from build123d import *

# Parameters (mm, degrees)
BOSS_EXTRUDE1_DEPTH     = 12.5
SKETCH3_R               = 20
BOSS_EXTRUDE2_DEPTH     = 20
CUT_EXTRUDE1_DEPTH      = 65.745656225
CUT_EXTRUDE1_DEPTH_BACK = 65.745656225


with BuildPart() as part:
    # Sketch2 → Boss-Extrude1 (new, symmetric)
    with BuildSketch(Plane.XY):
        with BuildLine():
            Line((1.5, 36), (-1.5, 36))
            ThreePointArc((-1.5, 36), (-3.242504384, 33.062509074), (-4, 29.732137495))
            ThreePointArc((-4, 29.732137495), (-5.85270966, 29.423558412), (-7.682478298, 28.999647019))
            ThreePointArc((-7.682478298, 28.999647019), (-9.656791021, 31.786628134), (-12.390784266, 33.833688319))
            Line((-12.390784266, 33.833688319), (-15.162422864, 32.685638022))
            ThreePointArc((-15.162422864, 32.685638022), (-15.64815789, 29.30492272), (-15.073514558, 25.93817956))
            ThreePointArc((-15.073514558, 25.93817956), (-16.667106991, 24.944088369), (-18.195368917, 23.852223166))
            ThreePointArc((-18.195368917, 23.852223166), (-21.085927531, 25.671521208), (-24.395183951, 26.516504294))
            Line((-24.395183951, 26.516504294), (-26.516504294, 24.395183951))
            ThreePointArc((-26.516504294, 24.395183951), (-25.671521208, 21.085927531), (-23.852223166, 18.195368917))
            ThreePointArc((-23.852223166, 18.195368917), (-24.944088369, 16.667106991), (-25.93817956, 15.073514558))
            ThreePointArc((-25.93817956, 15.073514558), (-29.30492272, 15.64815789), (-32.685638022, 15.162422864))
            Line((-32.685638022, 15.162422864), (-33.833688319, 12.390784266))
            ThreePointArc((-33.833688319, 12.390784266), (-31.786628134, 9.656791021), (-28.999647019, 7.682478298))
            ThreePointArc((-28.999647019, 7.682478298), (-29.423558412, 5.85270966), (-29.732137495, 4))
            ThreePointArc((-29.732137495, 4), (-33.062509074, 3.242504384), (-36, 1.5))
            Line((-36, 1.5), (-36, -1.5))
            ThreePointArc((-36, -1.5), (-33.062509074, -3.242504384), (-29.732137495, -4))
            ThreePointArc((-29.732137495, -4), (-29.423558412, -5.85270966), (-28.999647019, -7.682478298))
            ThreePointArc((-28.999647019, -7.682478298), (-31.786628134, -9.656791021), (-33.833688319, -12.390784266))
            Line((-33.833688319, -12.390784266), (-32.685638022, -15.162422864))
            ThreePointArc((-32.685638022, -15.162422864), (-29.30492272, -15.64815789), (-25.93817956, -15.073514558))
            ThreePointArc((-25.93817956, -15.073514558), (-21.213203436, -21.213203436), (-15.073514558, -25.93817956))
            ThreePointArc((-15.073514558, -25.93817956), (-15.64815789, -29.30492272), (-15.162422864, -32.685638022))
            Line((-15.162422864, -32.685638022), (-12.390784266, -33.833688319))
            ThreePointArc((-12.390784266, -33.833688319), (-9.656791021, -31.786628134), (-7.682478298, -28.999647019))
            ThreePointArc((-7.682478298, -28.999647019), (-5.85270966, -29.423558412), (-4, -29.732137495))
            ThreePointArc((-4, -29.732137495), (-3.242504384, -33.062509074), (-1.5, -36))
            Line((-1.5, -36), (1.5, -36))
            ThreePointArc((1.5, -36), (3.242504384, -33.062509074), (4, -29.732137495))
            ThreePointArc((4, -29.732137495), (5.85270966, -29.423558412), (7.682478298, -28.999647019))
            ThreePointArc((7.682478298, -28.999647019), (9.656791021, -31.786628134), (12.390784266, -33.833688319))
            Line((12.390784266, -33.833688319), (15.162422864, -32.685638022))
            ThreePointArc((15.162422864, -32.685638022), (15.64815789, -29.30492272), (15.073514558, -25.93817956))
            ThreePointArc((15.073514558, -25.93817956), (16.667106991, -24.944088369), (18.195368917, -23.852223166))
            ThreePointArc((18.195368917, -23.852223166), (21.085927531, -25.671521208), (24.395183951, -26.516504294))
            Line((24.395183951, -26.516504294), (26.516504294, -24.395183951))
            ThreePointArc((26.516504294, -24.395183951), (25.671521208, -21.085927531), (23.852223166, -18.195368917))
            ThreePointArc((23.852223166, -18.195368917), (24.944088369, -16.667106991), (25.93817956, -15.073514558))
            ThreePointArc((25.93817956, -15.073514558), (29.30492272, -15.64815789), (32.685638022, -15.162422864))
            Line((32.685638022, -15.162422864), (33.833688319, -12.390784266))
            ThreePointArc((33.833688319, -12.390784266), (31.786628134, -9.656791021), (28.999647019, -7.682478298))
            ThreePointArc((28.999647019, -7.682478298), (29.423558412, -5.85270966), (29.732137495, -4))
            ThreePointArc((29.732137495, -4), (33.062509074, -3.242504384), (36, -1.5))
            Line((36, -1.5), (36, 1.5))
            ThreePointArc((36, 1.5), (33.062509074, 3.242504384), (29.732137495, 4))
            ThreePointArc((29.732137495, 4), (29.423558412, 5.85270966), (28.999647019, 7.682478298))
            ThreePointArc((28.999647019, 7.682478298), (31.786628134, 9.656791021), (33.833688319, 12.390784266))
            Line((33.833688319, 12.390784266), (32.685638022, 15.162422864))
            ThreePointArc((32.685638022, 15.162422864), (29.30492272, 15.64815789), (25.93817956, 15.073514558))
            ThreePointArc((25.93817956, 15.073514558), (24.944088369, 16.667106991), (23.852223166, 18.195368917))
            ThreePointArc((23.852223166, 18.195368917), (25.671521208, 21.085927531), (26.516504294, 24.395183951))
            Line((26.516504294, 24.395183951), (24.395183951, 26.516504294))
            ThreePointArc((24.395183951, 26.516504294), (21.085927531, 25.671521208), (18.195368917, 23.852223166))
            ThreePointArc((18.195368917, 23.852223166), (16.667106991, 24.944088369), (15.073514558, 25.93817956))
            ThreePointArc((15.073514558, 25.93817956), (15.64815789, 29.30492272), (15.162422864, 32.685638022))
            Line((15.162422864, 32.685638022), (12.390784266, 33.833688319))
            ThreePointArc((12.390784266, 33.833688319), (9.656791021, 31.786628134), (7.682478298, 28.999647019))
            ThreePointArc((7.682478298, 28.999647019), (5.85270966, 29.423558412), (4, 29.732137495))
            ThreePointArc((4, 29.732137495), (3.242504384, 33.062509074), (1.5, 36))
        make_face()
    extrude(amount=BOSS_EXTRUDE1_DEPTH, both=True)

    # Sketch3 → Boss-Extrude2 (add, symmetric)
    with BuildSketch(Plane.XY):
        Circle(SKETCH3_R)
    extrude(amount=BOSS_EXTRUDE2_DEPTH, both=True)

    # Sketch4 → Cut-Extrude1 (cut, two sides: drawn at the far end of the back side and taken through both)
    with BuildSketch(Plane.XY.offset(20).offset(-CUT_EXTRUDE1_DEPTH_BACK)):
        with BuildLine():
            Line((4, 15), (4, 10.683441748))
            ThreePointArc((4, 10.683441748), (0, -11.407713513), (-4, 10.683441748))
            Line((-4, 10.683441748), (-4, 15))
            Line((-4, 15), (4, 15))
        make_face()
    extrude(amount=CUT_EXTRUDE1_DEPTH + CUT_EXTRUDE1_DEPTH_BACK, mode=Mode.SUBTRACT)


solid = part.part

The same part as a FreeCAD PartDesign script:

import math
import FreeCAD as App
import Part
import Sketcher

V = App.Vector
Q = App.Units.Quantity

doc = App.newDocument("Part")
params = doc.addObject("Spreadsheet::Sheet", "Params")
for row, (alias, value) in enumerate([
    ("sketch1_radius", "11 mm"),
    ("sketch1_radius2", "30 mm"),
    ("sketch1_width", "3 mm"),
    ("sketch1_length", "3 mm"),
    ("pad1_length", "25 mm"),
    ("sketch2_diameter", "40 mm"),
    ("pad2_length", "40 mm"),
    ("sketch3_width", "8 mm"),
], start=1):
    params.set(f"A{row}", alias)
    params.set(f"B{row}", "=" + value)
    params.setAlias(f"B{row}", alias)

body = doc.addObject("PartDesign::Body", "Body")

sketch1 = body.newObject("Sketcher::SketchObject", "Sketch")
sketch1.AttachmentSupport = (doc.getObject("XY_Plane"), [""])
sketch1.MapMode = "FlatFace"
sketch1.addGeometry(Part.LineSegment(V(1.5, 36, 0), V(-1.5, 36, 0)), False)
sketch1.addGeometry(Part.ArcOfCircle(Part.Circle(V(7, 29, 0), V(0, 0, 1), 11), math.radians(140), math.radians(176)), False)
sketch1.addGeometry(Part.ArcOfCircle(Part.Circle(V(0, 0, 0), V(0, 0, 1), 30), math.radians(97.66), math.radians(104.84)), False)
sketch1.addGeometry(Part.ArcOfCircle(Part.Circle(V(-17.5, 24.1, 0), V(0, 0, 1), 11), math.radians(26), math.radians(62)), False)
sketch1.addGeometry(Part.LineSegment(V(-12.4, 33.8, 0), V(-15.2, 32.7, 0)), False)
sketch1.addGeometry(Part.ArcOfCircle(Part.Circle(V(-4.6, 29.4, 0), V(0, 0, 1), 11), math.radians(163), math.radians(199)), False)
sketch1.addGeometry(Part.ArcOfCircle(Part.Circle(V(0, 0, 0), V(0, 0, 1), 30), math.radians(120.16), math.radians(127.34)), False)
sketch1.addGeometry(Part.ArcOfCircle(Part.Circle(V(-25.4, 15.6, 0), V(0, 0, 1), 11), math.radians(49), math.radians(85)), False)
sketch1.addGeometry(Part.LineSegment(V(-24.4, 26.5, 0), V(-26.5, 24.4, 0)), False)
sketch1.addGeometry(Part.ArcOfCircle(Part.Circle(V(-15.6, 25.4, 0), V(0, 0, 1), 11), math.radians(-175), math.radians(-139)), False)
sketch1.addGeometry(Part.ArcOfCircle(Part.Circle(V(0, 0, 0), V(0, 0, 1), 30), math.radians(142.66), math.radians(149.84)), False)
sketch1.addGeometry(Part.ArcOfCircle(Part.Circle(V(-29.4, 4.6, 0), V(0, 0, 1), 11), math.radians(71), math.radians(107)), False)
sketch1.addGeometry(Part.LineSegment(V(-32.7, 15.2, 0), V(-33.8, 12.4, 0)), False)
sketch1.addGeometry(Part.ArcOfCircle(Part.Circle(V(-24.1, 17.5, 0), V(0, 0, 1), 11), math.radians(-152), math.radians(-116)), False)
sketch1.addGeometry(Part.ArcOfCircle(Part.Circle(V(0, 0, 0), V(0, 0, 1), 30), math.radians(165.16), math.radians(172.34)), False)
sketch1.addGeometry(Part.ArcOfCircle(Part.Circle(V(-29, -7, 0), V(0, 0, 1), 11), math.radians(94), math.radians(130)), False)
sketch1.addGeometry(Part.LineSegment(V(-36, 1.5, 0), V(-36, -1.5, 0)), False)
sketch1.addGeometry(Part.ArcOfCircle(Part.Circle(V(-29, 7, 0), V(0, 0, 1), 11), math.radians(-130), math.radians(-94)), False)
sketch1.addGeometry(Part.ArcOfCircle(Part.Circle(V(0, 0, 0), V(0, 0, 1), 30), math.radians(-172.34), math.radians(-165.16)), False)
sketch1.addGeometry(Part.ArcOfCircle(Part.Circle(V(-24.1, -17.5, 0), V(0, 0, 1), 11), math.radians(116), math.radians(152)), False)
sketch1.addGeometry(Part.LineSegment(V(-33.8, -12.4, 0), V(-32.7, -15.2, 0)), False)
sketch1.addGeometry(Part.ArcOfCircle(Part.Circle(V(-29.4, -4.6, 0), V(0, 0, 1), 11), math.radians(-107), math.radians(-71)), False)
sketch1.addGeometry(Part.ArcOfCircle(Part.Circle(V(0, 0, 0), V(0, 0, 1), 30), math.radians(-150), math.radians(-120)), False)
sketch1.addGeometry(Part.ArcOfCircle(Part.Circle(V(-4.6, -29.4, 0), V(0, 0, 1), 11), math.radians(161), math.radians(197)), False)
sketch1.addGeometry(Part.LineSegment(V(-15.2, -32.7, 0), V(-12.4, -33.8, 0)), False)
sketch1.addGeometry(Part.ArcOfCircle(Part.Circle(V(-17.5, -24.1, 0), V(0, 0, 1), 11), math.radians(-62), math.radians(-26)), False)
sketch1.addGeometry(Part.ArcOfCircle(Part.Circle(V(0, 0, 0), V(0, 0, 1), 30), math.radians(-104.84), math.radians(-97.66)), False)
sketch1.addGeometry(Part.ArcOfCircle(Part.Circle(V(7, -29, 0), V(0, 0, 1), 11), math.radians(-176), math.radians(-140)), False)
sketch1.addGeometry(Part.LineSegment(V(-1.5, -36, 0), V(1.5, -36, 0)), False)
sketch1.addGeometry(Part.ArcOfCircle(Part.Circle(V(-7, -29, 0), V(0, 0, 1), 11), math.radians(-40), math.radians(-4)), False)
sketch1.addGeometry(Part.ArcOfCircle(Part.Circle(V(0, 0, 0), V(0, 0, 1), 30), math.radians(-82.34), math.radians(-75.16)), False)
sketch1.addGeometry(Part.ArcOfCircle(Part.Circle(V(17.5, -24.1, 0), V(0, 0, 1), 11), math.radians(-154), math.radians(-118)), False)
sketch1.addGeometry(Part.LineSegment(V(12.4, -33.8, 0), V(15.2, -32.7, 0)), False)
sketch1.addGeometry(Part.ArcOfCircle(Part.Circle(V(4.6, -29.4, 0), V(0, 0, 1), 11), math.radians(-17), math.radians(19)), False)
sketch1.addGeometry(Part.ArcOfCircle(Part.Circle(V(0, 0, 0), V(0, 0, 1), 30), math.radians(-59.84), math.radians(-52.66)), False)
sketch1.addGeometry(Part.ArcOfCircle(Part.Circle(V(25.4, -15.6, 0), V(0, 0, 1), 11), math.radians(-131), math.radians(-95)), False)
sketch1.addGeometry(Part.LineSegment(V(24.4, -26.5, 0), V(26.5, -24.4, 0)), False)
sketch1.addGeometry(Part.ArcOfCircle(Part.Circle(V(15.6, -25.4, 0), V(0, 0, 1), 11), math.radians(5), math.radians(41)), False)
sketch1.addGeometry(Part.ArcOfCircle(Part.Circle(V(0, 0, 0), V(0, 0, 1), 30), math.radians(-37.34), math.radians(-30.16)), False)
sketch1.addGeometry(Part.ArcOfCircle(Part.Circle(V(29.4, -4.6, 0), V(0, 0, 1), 11), math.radians(-109), math.radians(-73)), False)
sketch1.addGeometry(Part.LineSegment(V(32.7, -15.2, 0), V(33.8, -12.4, 0)), False)
sketch1.addGeometry(Part.ArcOfCircle(Part.Circle(V(24.1, -17.5, 0), V(0, 0, 1), 11), math.radians(28), math.radians(64)), False)
sketch1.addGeometry(Part.ArcOfCircle(Part.Circle(V(0, 0, 0), V(0, 0, 1), 30), math.radians(-14.84), math.radians(-7.66)), False)
sketch1.addGeometry(Part.ArcOfCircle(Part.Circle(V(29, 7, 0), V(0, 0, 1), 11), math.radians(-86), math.radians(-50)), False)
sketch1.addGeometry(Part.LineSegment(V(36, -1.5, 0), V(36, 1.5, 0)), False)
sketch1.addGeometry(Part.ArcOfCircle(Part.Circle(V(29, -7, 0), V(0, 0, 1), 11), math.radians(50), math.radians(86)), False)
sketch1.addGeometry(Part.ArcOfCircle(Part.Circle(V(0, 0, 0), V(0, 0, 1), 30), math.radians(7.66), math.radians(14.84)), False)
sketch1.addGeometry(Part.ArcOfCircle(Part.Circle(V(24.1, 17.5, 0), V(0, 0, 1), 11), math.radians(-64), math.radians(-28)), False)
sketch1.addGeometry(Part.LineSegment(V(33.8, 12.4, 0), V(32.7, 15.2, 0)), False)
sketch1.addGeometry(Part.ArcOfCircle(Part.Circle(V(29.4, 4.6, 0), V(0, 0, 1), 11), math.radians(73), math.radians(109)), False)
sketch1.addGeometry(Part.ArcOfCircle(Part.Circle(V(0, 0, 0), V(0, 0, 1), 30), math.radians(30.16), math.radians(37.34)), False)
sketch1.addGeometry(Part.ArcOfCircle(Part.Circle(V(15.6, 25.4, 0), V(0, 0, 1), 11), math.radians(-41), math.radians(-5)), False)
sketch1.addGeometry(Part.LineSegment(V(26.5, 24.4, 0), V(24.4, 26.5, 0)), False)
sketch1.addGeometry(Part.ArcOfCircle(Part.Circle(V(25.4, 15.6, 0), V(0, 0, 1), 11), math.radians(95), math.radians(131)), False)
sketch1.addGeometry(Part.ArcOfCircle(Part.Circle(V(0, 0, 0), V(0, 0, 1), 30), math.radians(52.66), math.radians(59.84)), False)
sketch1.addGeometry(Part.ArcOfCircle(Part.Circle(V(4.6, 29.4, 0), V(0, 0, 1), 11), math.radians(-19), math.radians(17)), False)
sketch1.addGeometry(Part.LineSegment(V(15.2, 32.7, 0), V(12.4, 33.8, 0)), False)
sketch1.addGeometry(Part.ArcOfCircle(Part.Circle(V(17.5, 24.1, 0), V(0, 0, 1), 11), math.radians(118), math.radians(154)), False)
sketch1.addGeometry(Part.ArcOfCircle(Part.Circle(V(0, 0, 0), V(0, 0, 1), 30), math.radians(75.16), math.radians(82.34)), False)
sketch1.addGeometry(Part.ArcOfCircle(Part.Circle(V(-7, 29, 0), V(0, 0, 1), 11), math.radians(4), math.radians(40)), False)
sketch1.addConstraint(Sketcher.Constraint("Coincident", 0, 2, 1, 1))
sketch1.addConstraint(Sketcher.Constraint("Coincident", 1, 2, 2, 1))
sketch1.addConstraint(Sketcher.Constraint("Coincident", 2, 2, 3, 1))
sketch1.addConstraint(Sketcher.Constraint("Coincident", 3, 2, 4, 1))
sketch1.addConstraint(Sketcher.Constraint("Coincident", 4, 2, 5, 1))
sketch1.addConstraint(Sketcher.Constraint("Coincident", 5, 2, 6, 1))
sketch1.addConstraint(Sketcher.Constraint("Coincident", 6, 2, 7, 1))
sketch1.addConstraint(Sketcher.Constraint("Coincident", 7, 2, 8, 1))
sketch1.addConstraint(Sketcher.Constraint("Coincident", 8, 2, 9, 1))
sketch1.addConstraint(Sketcher.Constraint("Coincident", 9, 2, 10, 1))
sketch1.addConstraint(Sketcher.Constraint("Coincident", 10, 2, 11, 1))
sketch1.addConstraint(Sketcher.Constraint("Coincident", 11, 2, 12, 1))
sketch1.addConstraint(Sketcher.Constraint("Coincident", 12, 2, 13, 1))
sketch1.addConstraint(Sketcher.Constraint("Coincident", 13, 2, 14, 1))
sketch1.addConstraint(Sketcher.Constraint("Coincident", 14, 2, 15, 1))
sketch1.addConstraint(Sketcher.Constraint("Coincident", 15, 2, 16, 1))
sketch1.addConstraint(Sketcher.Constraint("Coincident", 16, 2, 17, 1))
sketch1.addConstraint(Sketcher.Constraint("Coincident", 17, 2, 18, 1))
sketch1.addConstraint(Sketcher.Constraint("Coincident", 18, 2, 19, 1))
sketch1.addConstraint(Sketcher.Constraint("Coincident", 19, 2, 20, 1))
sketch1.addConstraint(Sketcher.Constraint("Coincident", 20, 2, 21, 1))
sketch1.addConstraint(Sketcher.Constraint("Coincident", 21, 2, 22, 1))
sketch1.addConstraint(Sketcher.Constraint("Coincident", 22, 2, 23, 1))
sketch1.addConstraint(Sketcher.Constraint("Coincident", 23, 2, 24, 1))
sketch1.addConstraint(Sketcher.Constraint("Coincident", 24, 2, 25, 1))
sketch1.addConstraint(Sketcher.Constraint("Coincident", 25, 2, 26, 1))
sketch1.addConstraint(Sketcher.Constraint("Coincident", 26, 2, 27, 1))
sketch1.addConstraint(Sketcher.Constraint("Coincident", 27, 2, 28, 1))
sketch1.addConstraint(Sketcher.Constraint("Coincident", 28, 2, 29, 1))
sketch1.addConstraint(Sketcher.Constraint("Coincident", 29, 2, 30, 1))
sketch1.addConstraint(Sketcher.Constraint("Coincident", 30, 2, 31, 1))
sketch1.addConstraint(Sketcher.Constraint("Coincident", 31, 2, 32, 1))
sketch1.addConstraint(Sketcher.Constraint("Coincident", 32, 2, 33, 1))
sketch1.addConstraint(Sketcher.Constraint("Coincident", 33, 2, 34, 1))
sketch1.addConstraint(Sketcher.Constraint("Coincident", 34, 2, 35, 1))
sketch1.addConstraint(Sketcher.Constraint("Coincident", 35, 2, 36, 1))
sketch1.addConstraint(Sketcher.Constraint("Coincident", 36, 2, 37, 1))
sketch1.addConstraint(Sketcher.Constraint("Coincident", 37, 2, 38, 1))
sketch1.addConstraint(Sketcher.Constraint("Coincident", 38, 2, 39, 1))
sketch1.addConstraint(Sketcher.Constraint("Coincident", 39, 2, 40, 1))
sketch1.addConstraint(Sketcher.Constraint("Coincident", 40, 2, 41, 1))
sketch1.addConstraint(Sketcher.Constraint("Coincident", 41, 2, 42, 1))
sketch1.addConstraint(Sketcher.Constraint("Coincident", 42, 2, 43, 1))
sketch1.addConstraint(Sketcher.Constraint("Coincident", 43, 2, 44, 1))
sketch1.addConstraint(Sketcher.Constraint("Coincident", 44, 2, 45, 1))
sketch1.addConstraint(Sketcher.Constraint("Coincident", 45, 2, 46, 1))
sketch1.addConstraint(Sketcher.Constraint("Coincident", 46, 2, 47, 1))
sketch1.addConstraint(Sketcher.Constraint("Coincident", 47, 2, 48, 1))
sketch1.addConstraint(Sketcher.Constraint("Coincident", 48, 2, 49, 1))
sketch1.addConstraint(Sketcher.Constraint("Coincident", 49, 2, 50, 1))
sketch1.addConstraint(Sketcher.Constraint("Coincident", 50, 2, 51, 1))
sketch1.addConstraint(Sketcher.Constraint("Coincident", 51, 2, 52, 1))
sketch1.addConstraint(Sketcher.Constraint("Coincident", 52, 2, 53, 1))
sketch1.addConstraint(Sketcher.Constraint("Coincident", 53, 2, 54, 1))
sketch1.addConstraint(Sketcher.Constraint("Coincident", 54, 2, 55, 1))
sketch1.addConstraint(Sketcher.Constraint("Coincident", 55, 2, 56, 1))
sketch1.addConstraint(Sketcher.Constraint("Coincident", 56, 2, 57, 1))
sketch1.addConstraint(Sketcher.Constraint("Coincident", 57, 2, 58, 1))
sketch1.addConstraint(Sketcher.Constraint("Coincident", 58, 2, 59, 1))
sketch1.addConstraint(Sketcher.Constraint("Coincident", 59, 2, 0, 1))
sketch1.addConstraint(Sketcher.Constraint("Horizontal", 0))
sketch1.addConstraint(Sketcher.Constraint("Vertical", 16))
sketch1.addConstraint(Sketcher.Constraint("Horizontal", 28))
sketch1.addConstraint(Sketcher.Constraint("Vertical", 44))
sketch1.addConstraint(Sketcher.Constraint("Coincident", 2, 3, -1, 1))
sketch1.addConstraint(Sketcher.Constraint("Coincident", 6, 3, -1, 1))
sketch1.addConstraint(Sketcher.Constraint("Coincident", 10, 3, -1, 1))
sketch1.addConstraint(Sketcher.Constraint("Coincident", 14, 3, -1, 1))
sketch1.addConstraint(Sketcher.Constraint("Coincident", 18, 3, -1, 1))
sketch1.addConstraint(Sketcher.Constraint("Coincident", 22, 3, -1, 1))
sketch1.addConstraint(Sketcher.Constraint("Coincident", 26, 3, -1, 1))
sketch1.addConstraint(Sketcher.Constraint("Coincident", 30, 3, -1, 1))
sketch1.addConstraint(Sketcher.Constraint("Coincident", 34, 3, -1, 1))
sketch1.addConstraint(Sketcher.Constraint("Coincident", 38, 3, -1, 1))
sketch1.addConstraint(Sketcher.Constraint("Coincident", 42, 3, -1, 1))
sketch1.addConstraint(Sketcher.Constraint("Coincident", 46, 3, -1, 1))
sketch1.addConstraint(Sketcher.Constraint("Coincident", 50, 3, -1, 1))
sketch1.addConstraint(Sketcher.Constraint("Coincident", 54, 3, -1, 1))
sketch1.addConstraint(Sketcher.Constraint("Coincident", 58, 3, -1, 1))
sketch1.addConstraint(Sketcher.Constraint("Equal", 1, 3))
sketch1.addConstraint(Sketcher.Constraint("Equal", 3, 5))
sketch1.addConstraint(Sketcher.Constraint("Equal", 2, 6))
sketch1.addConstraint(Sketcher.Constraint("Equal", 5, 7))
sketch1.addConstraint(Sketcher.Constraint("Equal", 7, 9))
sketch1.addConstraint(Sketcher.Constraint("Equal", 6, 10))
sketch1.addConstraint(Sketcher.Constraint("Equal", 9, 11))
sketch1.addConstraint(Sketcher.Constraint("Equal", 11, 13))
sketch1.addConstraint(Sketcher.Constraint("Equal", 10, 14))
sketch1.addConstraint(Sketcher.Constraint("Equal", 13, 15))
sketch1.addConstraint(Sketcher.Constraint("Equal", 15, 17))
sketch1.addConstraint(Sketcher.Constraint("Equal", 14, 18))
sketch1.addConstraint(Sketcher.Constraint("Equal", 17, 19))
sketch1.addConstraint(Sketcher.Constraint("Equal", 19, 21))
sketch1.addConstraint(Sketcher.Constraint("Equal", 18, 22))
sketch1.addConstraint(Sketcher.Constraint("Equal", 21, 23))
sketch1.addConstraint(Sketcher.Constraint("Equal", 23, 25))
sketch1.addConstraint(Sketcher.Constraint("Equal", 22, 26))
sketch1.addConstraint(Sketcher.Constraint("Equal", 25, 27))
sketch1.addConstraint(Sketcher.Constraint("Equal", 27, 29))
sketch1.addConstraint(Sketcher.Constraint("Equal", 26, 30))
sketch1.addConstraint(Sketcher.Constraint("Equal", 29, 31))
sketch1.addConstraint(Sketcher.Constraint("Equal", 31, 33))
sketch1.addConstraint(Sketcher.Constraint("Equal", 30, 34))
sketch1.addConstraint(Sketcher.Constraint("Equal", 33, 35))
sketch1.addConstraint(Sketcher.Constraint("Equal", 35, 37))
sketch1.addConstraint(Sketcher.Constraint("Equal", 34, 38))
sketch1.addConstraint(Sketcher.Constraint("Equal", 37, 39))
sketch1.addConstraint(Sketcher.Constraint("Equal", 39, 41))
sketch1.addConstraint(Sketcher.Constraint("Equal", 38, 42))
sketch1.addConstraint(Sketcher.Constraint("Equal", 41, 43))
sketch1.addConstraint(Sketcher.Constraint("Equal", 43, 45))
sketch1.addConstraint(Sketcher.Constraint("Equal", 42, 46))
sketch1.addConstraint(Sketcher.Constraint("Equal", 45, 47))
sketch1.addConstraint(Sketcher.Constraint("Equal", 47, 49))
sketch1.addConstraint(Sketcher.Constraint("Equal", 46, 50))
sketch1.addConstraint(Sketcher.Constraint("Equal", 49, 51))
sketch1.addConstraint(Sketcher.Constraint("Equal", 51, 53))
sketch1.addConstraint(Sketcher.Constraint("Equal", 50, 54))
sketch1.addConstraint(Sketcher.Constraint("Equal", 53, 55))
sketch1.addConstraint(Sketcher.Constraint("Equal", 55, 57))
sketch1.addConstraint(Sketcher.Constraint("Equal", 54, 58))
sketch1.addConstraint(Sketcher.Constraint("Equal", 57, 59))
sketch1.addConstraint(Sketcher.Constraint("Symmetric", 1, 3, 29, 3, -1, 1))
sketch1.addConstraint(Sketcher.Constraint("Symmetric", 3, 3, 31, 3, -1, 1))
sketch1.addConstraint(Sketcher.Constraint("Symmetric", 5, 3, 33, 3, -1, 1))
sketch1.addConstraint(Sketcher.Constraint("Symmetric", 7, 3, 35, 3, -1, 1))
sketch1.addConstraint(Sketcher.Constraint("Symmetric", 9, 3, 37, 3, -1, 1))
sketch1.addConstraint(Sketcher.Constraint("Symmetric", 11, 3, 39, 3, -1, 1))
sketch1.addConstraint(Sketcher.Constraint("Symmetric", 13, 3, 41, 3, -1, 1))
sketch1.addConstraint(Sketcher.Constraint("Symmetric", 15, 3, 43, 3, -1, 1))
sketch1.addConstraint(Sketcher.Constraint("Symmetric", 17, 3, 45, 3, -1, 1))
sketch1.addConstraint(Sketcher.Constraint("Symmetric", 19, 3, 47, 3, -1, 1))
sketch1.addConstraint(Sketcher.Constraint("Symmetric", 21, 3, 49, 3, -1, 1))
sketch1.addConstraint(Sketcher.Constraint("Symmetric", 23, 3, 55, 3, -1, 1))
sketch1.addConstraint(Sketcher.Constraint("Symmetric", 25, 3, 57, 3, -1, 1))
sketch1.addConstraint(Sketcher.Constraint("Symmetric", 27, 3, 59, 3, -1, 1))
sketch1.addConstraint(Sketcher.Constraint("Symmetric", 27, 3, 29, 3, -2))
sketch1.addConstraint(Sketcher.Constraint("Symmetric", 25, 3, 31, 3, -2))
sketch1.addConstraint(Sketcher.Constraint("Symmetric", 23, 3, 33, 3, -2))
sketch1.addConstraint(Sketcher.Constraint("Symmetric", 21, 3, 39, 3, -2))
sketch1.addConstraint(Sketcher.Constraint("Symmetric", 19, 3, 41, 3, -2))
sketch1.addConstraint(Sketcher.Constraint("Symmetric", 17, 3, 43, 3, -2))
sketch1.addConstraint(Sketcher.Constraint("Symmetric", 9, 3, 51, 3, -2))
sketch1.addConstraint(Sketcher.Constraint("Symmetric", 7, 3, 53, 3, -2))
sketch1.addConstraint(Sketcher.Constraint("Perpendicular", 4, 20))
sketch1.addConstraint(Sketcher.Constraint("Perpendicular", 12, 24))
sketch1.addConstraint(Sketcher.Constraint("Perpendicular", 20, 32))
sketch1.addConstraint(Sketcher.Constraint("Parallel", 8, 36))
sketch1.addConstraint(Sketcher.Constraint("Perpendicular", 24, 40))
sketch1.addConstraint(Sketcher.Constraint("Perpendicular", 32, 48))
sketch1.addConstraint(Sketcher.Constraint("Perpendicular", 36, 52))
sketch1.addConstraint(Sketcher.Constraint("Perpendicular", 40, 56))
sketch1.addConstraint(Sketcher.Constraint("Horizontal", 24, 2, 31, 2))
sketch1.addConstraint(Sketcher.Constraint("Horizontal", 23, 2, 32, 2))
sketch1.addConstraint(Sketcher.Constraint("Horizontal", 20, 2, 39, 2))
sketch1.addConstraint(Sketcher.Constraint("Horizontal", 16, 2, 43, 2))
sketch1.addConstraint(Sketcher.Constraint("Horizontal", 12, 2, 47, 2))
sketch1.addConstraint(Sketcher.Constraint("Horizontal", 8, 2, 51, 2))
sketch1.addConstraint(Sketcher.Constraint("Horizontal", 7, 2, 52, 2))
sketch1.addConstraint(Sketcher.Constraint("Horizontal", 4, 2, 55, 2))
sketch1.addConstraint(Sketcher.Constraint("Vertical", 12, 2, 19, 2))
sketch1.addConstraint(Sketcher.Constraint("Vertical", 4, 2, 23, 2))
sketch1.addConstraint(Sketcher.Constraint("Vertical", 0, 2, 27, 2))
sketch1.addConstraint(Sketcher.Constraint("Vertical", 36, 2, 51, 2))
sketch1.addConstraint(Sketcher.Constraint("Equal", 28, 16))
sketch1.addConstraint(Sketcher.Constraint("Equal", 4, 8))
sketch1.addConstraint(Sketcher.Constraint("Equal", 8, 12))
sketch1.addConstraint(Sketcher.Constraint("Radius", 1, Q("11 mm")))
sketch1.addConstraint(Sketcher.Constraint("Radius", 2, Q("30 mm")))
sketch1.addConstraint(Sketcher.Constraint("DistanceX", 0, 2, 0, 1, Q("3 mm")))
sketch1.addConstraint(Sketcher.Constraint("Distance", 4, Q("3 mm")))
sketch1.addConstraint(Sketcher.Constraint("DistanceY", -1, 1, 0, 2, Q("36 mm")))
sketch1.addConstraint(Sketcher.Constraint("DistanceX", 1, 2, -1, 1, Q("4 mm")))
sketch1.addConstraint(Sketcher.Constraint("DistanceY", -1, 1, 14, 2, Q("4 mm")))
sketch1.addConstraint(Sketcher.Constraint("DistanceX", 15, 2, -1, 1, Q("36 mm")))
sketch1.addConstraint(Sketcher.Constraint("Angle", 4, Q("-157.5 deg")))
sketch1.addConstraint(Sketcher.Constraint("DistanceX", 3, 3, -1, 1, Q("17.536771 mm")))
sketch1.addConstraint(Sketcher.Constraint("DistanceY", -1, 1, 3, 3, Q("24.111609 mm")))
sketch1.addConstraint(Sketcher.Constraint("DistanceY", -1, 1, 7, 3, Q("15.565191 mm")))
sketch1.addConstraint(Sketcher.Constraint("DistanceX", 9, 3, -1, 1, Q("15.565191 mm")))
sketch1.addConstraint(Sketcher.Constraint("DistanceX", 13, 3, -1, 1, Q("24.111609 mm")))
sketch1.addConstraint(Sketcher.Constraint("DistanceY", -1, 1, 13, 3, Q("17.536771 mm")))
sketch1.addConstraint(Sketcher.Constraint("DistanceY", -1, 1, 3, 2, Q("33.833688 mm")))
sketch1.addConstraint(Sketcher.Constraint("DistanceY", -1, 1, 5, 2, Q("25.93818 mm")))
sketch1.addConstraint(Sketcher.Constraint("DistanceX", 6, 2, -1, 1, Q("18.195369 mm")))
sketch1.addConstraint(Sketcher.Constraint("DistanceY", -1, 1, 9, 2, Q("18.195369 mm")))
sketch1.addConstraint(Sketcher.Constraint("DistanceX", 10, 2, -1, 1, Q("25.93818 mm")))
sketch1.addConstraint(Sketcher.Constraint("DistanceX", 11, 2, -1, 1, Q("32.685638 mm")))
sketch1.setExpression("Constraints[167]", "Params.sketch1_radius")
sketch1.setExpression("Constraints[168]", "Params.sketch1_radius2")
sketch1.setExpression("Constraints[169]", "Params.sketch1_width")
sketch1.setExpression("Constraints[170]", "Params.sketch1_length")
pad1 = body.newObject("PartDesign::Pad", "Pad")
pad1.Profile = sketch1
pad1.setExpression("Length", "Params.pad1_length")
pad1.Midplane = True

sketch2 = body.newObject("Sketcher::SketchObject", "Sketch001")
sketch2.AttachmentSupport = (doc.getObject("XY_Plane"), [""])
sketch2.MapMode = "FlatFace"
sketch2.addGeometry(Part.Circle(V(0, 0, 0), V(0, 0, 1), 20), False)
sketch2.addConstraint(Sketcher.Constraint("Coincident", 0, 3, -1, 1))
sketch2.addConstraint(Sketcher.Constraint("Diameter", 0, Q("40 mm")))
sketch2.setExpression("Constraints[1]", "Params.sketch2_diameter")
pad2 = body.newObject("PartDesign::Pad", "Pad001")
pad2.Profile = sketch2
pad2.setExpression("Length", "Params.pad2_length")
pad2.Midplane = True

sketch3 = body.newObject("Sketcher::SketchObject", "Sketch002")
sketch3.AttachmentSupport = (doc.getObject("XY_Plane"), [""])
sketch3.MapMode = "FlatFace"
sketch3.AttachmentOffset = App.Placement(V(0, 0, 20), App.Rotation())
sketch3.addGeometry(Part.LineSegment(V(4, 10.7, 0), V(4, 15, 0)), False)
sketch3.addGeometry(Part.LineSegment(V(4, 15, 0), V(-4, 15, 0)), False)
sketch3.addGeometry(Part.LineSegment(V(-4, 15, 0), V(-4, 10.7, 0)), False)
sketch3.addGeometry(Part.ArcOfCircle(Part.Circle(V(0, 0, 0), V(0, 0, 1), 11.4), math.radians(111), math.radians(429)), False)
sketch3.addConstraint(Sketcher.Constraint("Coincident", 0, 2, 1, 1))
sketch3.addConstraint(Sketcher.Constraint("Coincident", 1, 2, 2, 1))
sketch3.addConstraint(Sketcher.Constraint("Coincident", 2, 2, 3, 1))
sketch3.addConstraint(Sketcher.Constraint("Coincident", 3, 2, 0, 1))
sketch3.addConstraint(Sketcher.Constraint("Vertical", 0))
sketch3.addConstraint(Sketcher.Constraint("Horizontal", 1))
sketch3.addConstraint(Sketcher.Constraint("Vertical", 2))
sketch3.addConstraint(Sketcher.Constraint("Coincident", 3, 3, -1, 1))
sketch3.addConstraint(Sketcher.Constraint("Horizontal", 2, 2, 3, 2))
sketch3.addConstraint(Sketcher.Constraint("DistanceX", 1, 2, 1, 1, Q("8 mm")))
sketch3.addConstraint(Sketcher.Constraint("DistanceY", -1, 1, 0, 2, Q("15 mm")))
sketch3.addConstraint(Sketcher.Constraint("Radius", 3, Q("11.407714 mm")))
sketch3.setExpression("Constraints[9]", "Params.sketch3_width")
pocket1 = body.newObject("PartDesign::Pocket", "Pocket")
pocket1.Profile = sketch3
pocket1.Type = "ThroughAll"
pocket1.Midplane = True

doc.recompute()
